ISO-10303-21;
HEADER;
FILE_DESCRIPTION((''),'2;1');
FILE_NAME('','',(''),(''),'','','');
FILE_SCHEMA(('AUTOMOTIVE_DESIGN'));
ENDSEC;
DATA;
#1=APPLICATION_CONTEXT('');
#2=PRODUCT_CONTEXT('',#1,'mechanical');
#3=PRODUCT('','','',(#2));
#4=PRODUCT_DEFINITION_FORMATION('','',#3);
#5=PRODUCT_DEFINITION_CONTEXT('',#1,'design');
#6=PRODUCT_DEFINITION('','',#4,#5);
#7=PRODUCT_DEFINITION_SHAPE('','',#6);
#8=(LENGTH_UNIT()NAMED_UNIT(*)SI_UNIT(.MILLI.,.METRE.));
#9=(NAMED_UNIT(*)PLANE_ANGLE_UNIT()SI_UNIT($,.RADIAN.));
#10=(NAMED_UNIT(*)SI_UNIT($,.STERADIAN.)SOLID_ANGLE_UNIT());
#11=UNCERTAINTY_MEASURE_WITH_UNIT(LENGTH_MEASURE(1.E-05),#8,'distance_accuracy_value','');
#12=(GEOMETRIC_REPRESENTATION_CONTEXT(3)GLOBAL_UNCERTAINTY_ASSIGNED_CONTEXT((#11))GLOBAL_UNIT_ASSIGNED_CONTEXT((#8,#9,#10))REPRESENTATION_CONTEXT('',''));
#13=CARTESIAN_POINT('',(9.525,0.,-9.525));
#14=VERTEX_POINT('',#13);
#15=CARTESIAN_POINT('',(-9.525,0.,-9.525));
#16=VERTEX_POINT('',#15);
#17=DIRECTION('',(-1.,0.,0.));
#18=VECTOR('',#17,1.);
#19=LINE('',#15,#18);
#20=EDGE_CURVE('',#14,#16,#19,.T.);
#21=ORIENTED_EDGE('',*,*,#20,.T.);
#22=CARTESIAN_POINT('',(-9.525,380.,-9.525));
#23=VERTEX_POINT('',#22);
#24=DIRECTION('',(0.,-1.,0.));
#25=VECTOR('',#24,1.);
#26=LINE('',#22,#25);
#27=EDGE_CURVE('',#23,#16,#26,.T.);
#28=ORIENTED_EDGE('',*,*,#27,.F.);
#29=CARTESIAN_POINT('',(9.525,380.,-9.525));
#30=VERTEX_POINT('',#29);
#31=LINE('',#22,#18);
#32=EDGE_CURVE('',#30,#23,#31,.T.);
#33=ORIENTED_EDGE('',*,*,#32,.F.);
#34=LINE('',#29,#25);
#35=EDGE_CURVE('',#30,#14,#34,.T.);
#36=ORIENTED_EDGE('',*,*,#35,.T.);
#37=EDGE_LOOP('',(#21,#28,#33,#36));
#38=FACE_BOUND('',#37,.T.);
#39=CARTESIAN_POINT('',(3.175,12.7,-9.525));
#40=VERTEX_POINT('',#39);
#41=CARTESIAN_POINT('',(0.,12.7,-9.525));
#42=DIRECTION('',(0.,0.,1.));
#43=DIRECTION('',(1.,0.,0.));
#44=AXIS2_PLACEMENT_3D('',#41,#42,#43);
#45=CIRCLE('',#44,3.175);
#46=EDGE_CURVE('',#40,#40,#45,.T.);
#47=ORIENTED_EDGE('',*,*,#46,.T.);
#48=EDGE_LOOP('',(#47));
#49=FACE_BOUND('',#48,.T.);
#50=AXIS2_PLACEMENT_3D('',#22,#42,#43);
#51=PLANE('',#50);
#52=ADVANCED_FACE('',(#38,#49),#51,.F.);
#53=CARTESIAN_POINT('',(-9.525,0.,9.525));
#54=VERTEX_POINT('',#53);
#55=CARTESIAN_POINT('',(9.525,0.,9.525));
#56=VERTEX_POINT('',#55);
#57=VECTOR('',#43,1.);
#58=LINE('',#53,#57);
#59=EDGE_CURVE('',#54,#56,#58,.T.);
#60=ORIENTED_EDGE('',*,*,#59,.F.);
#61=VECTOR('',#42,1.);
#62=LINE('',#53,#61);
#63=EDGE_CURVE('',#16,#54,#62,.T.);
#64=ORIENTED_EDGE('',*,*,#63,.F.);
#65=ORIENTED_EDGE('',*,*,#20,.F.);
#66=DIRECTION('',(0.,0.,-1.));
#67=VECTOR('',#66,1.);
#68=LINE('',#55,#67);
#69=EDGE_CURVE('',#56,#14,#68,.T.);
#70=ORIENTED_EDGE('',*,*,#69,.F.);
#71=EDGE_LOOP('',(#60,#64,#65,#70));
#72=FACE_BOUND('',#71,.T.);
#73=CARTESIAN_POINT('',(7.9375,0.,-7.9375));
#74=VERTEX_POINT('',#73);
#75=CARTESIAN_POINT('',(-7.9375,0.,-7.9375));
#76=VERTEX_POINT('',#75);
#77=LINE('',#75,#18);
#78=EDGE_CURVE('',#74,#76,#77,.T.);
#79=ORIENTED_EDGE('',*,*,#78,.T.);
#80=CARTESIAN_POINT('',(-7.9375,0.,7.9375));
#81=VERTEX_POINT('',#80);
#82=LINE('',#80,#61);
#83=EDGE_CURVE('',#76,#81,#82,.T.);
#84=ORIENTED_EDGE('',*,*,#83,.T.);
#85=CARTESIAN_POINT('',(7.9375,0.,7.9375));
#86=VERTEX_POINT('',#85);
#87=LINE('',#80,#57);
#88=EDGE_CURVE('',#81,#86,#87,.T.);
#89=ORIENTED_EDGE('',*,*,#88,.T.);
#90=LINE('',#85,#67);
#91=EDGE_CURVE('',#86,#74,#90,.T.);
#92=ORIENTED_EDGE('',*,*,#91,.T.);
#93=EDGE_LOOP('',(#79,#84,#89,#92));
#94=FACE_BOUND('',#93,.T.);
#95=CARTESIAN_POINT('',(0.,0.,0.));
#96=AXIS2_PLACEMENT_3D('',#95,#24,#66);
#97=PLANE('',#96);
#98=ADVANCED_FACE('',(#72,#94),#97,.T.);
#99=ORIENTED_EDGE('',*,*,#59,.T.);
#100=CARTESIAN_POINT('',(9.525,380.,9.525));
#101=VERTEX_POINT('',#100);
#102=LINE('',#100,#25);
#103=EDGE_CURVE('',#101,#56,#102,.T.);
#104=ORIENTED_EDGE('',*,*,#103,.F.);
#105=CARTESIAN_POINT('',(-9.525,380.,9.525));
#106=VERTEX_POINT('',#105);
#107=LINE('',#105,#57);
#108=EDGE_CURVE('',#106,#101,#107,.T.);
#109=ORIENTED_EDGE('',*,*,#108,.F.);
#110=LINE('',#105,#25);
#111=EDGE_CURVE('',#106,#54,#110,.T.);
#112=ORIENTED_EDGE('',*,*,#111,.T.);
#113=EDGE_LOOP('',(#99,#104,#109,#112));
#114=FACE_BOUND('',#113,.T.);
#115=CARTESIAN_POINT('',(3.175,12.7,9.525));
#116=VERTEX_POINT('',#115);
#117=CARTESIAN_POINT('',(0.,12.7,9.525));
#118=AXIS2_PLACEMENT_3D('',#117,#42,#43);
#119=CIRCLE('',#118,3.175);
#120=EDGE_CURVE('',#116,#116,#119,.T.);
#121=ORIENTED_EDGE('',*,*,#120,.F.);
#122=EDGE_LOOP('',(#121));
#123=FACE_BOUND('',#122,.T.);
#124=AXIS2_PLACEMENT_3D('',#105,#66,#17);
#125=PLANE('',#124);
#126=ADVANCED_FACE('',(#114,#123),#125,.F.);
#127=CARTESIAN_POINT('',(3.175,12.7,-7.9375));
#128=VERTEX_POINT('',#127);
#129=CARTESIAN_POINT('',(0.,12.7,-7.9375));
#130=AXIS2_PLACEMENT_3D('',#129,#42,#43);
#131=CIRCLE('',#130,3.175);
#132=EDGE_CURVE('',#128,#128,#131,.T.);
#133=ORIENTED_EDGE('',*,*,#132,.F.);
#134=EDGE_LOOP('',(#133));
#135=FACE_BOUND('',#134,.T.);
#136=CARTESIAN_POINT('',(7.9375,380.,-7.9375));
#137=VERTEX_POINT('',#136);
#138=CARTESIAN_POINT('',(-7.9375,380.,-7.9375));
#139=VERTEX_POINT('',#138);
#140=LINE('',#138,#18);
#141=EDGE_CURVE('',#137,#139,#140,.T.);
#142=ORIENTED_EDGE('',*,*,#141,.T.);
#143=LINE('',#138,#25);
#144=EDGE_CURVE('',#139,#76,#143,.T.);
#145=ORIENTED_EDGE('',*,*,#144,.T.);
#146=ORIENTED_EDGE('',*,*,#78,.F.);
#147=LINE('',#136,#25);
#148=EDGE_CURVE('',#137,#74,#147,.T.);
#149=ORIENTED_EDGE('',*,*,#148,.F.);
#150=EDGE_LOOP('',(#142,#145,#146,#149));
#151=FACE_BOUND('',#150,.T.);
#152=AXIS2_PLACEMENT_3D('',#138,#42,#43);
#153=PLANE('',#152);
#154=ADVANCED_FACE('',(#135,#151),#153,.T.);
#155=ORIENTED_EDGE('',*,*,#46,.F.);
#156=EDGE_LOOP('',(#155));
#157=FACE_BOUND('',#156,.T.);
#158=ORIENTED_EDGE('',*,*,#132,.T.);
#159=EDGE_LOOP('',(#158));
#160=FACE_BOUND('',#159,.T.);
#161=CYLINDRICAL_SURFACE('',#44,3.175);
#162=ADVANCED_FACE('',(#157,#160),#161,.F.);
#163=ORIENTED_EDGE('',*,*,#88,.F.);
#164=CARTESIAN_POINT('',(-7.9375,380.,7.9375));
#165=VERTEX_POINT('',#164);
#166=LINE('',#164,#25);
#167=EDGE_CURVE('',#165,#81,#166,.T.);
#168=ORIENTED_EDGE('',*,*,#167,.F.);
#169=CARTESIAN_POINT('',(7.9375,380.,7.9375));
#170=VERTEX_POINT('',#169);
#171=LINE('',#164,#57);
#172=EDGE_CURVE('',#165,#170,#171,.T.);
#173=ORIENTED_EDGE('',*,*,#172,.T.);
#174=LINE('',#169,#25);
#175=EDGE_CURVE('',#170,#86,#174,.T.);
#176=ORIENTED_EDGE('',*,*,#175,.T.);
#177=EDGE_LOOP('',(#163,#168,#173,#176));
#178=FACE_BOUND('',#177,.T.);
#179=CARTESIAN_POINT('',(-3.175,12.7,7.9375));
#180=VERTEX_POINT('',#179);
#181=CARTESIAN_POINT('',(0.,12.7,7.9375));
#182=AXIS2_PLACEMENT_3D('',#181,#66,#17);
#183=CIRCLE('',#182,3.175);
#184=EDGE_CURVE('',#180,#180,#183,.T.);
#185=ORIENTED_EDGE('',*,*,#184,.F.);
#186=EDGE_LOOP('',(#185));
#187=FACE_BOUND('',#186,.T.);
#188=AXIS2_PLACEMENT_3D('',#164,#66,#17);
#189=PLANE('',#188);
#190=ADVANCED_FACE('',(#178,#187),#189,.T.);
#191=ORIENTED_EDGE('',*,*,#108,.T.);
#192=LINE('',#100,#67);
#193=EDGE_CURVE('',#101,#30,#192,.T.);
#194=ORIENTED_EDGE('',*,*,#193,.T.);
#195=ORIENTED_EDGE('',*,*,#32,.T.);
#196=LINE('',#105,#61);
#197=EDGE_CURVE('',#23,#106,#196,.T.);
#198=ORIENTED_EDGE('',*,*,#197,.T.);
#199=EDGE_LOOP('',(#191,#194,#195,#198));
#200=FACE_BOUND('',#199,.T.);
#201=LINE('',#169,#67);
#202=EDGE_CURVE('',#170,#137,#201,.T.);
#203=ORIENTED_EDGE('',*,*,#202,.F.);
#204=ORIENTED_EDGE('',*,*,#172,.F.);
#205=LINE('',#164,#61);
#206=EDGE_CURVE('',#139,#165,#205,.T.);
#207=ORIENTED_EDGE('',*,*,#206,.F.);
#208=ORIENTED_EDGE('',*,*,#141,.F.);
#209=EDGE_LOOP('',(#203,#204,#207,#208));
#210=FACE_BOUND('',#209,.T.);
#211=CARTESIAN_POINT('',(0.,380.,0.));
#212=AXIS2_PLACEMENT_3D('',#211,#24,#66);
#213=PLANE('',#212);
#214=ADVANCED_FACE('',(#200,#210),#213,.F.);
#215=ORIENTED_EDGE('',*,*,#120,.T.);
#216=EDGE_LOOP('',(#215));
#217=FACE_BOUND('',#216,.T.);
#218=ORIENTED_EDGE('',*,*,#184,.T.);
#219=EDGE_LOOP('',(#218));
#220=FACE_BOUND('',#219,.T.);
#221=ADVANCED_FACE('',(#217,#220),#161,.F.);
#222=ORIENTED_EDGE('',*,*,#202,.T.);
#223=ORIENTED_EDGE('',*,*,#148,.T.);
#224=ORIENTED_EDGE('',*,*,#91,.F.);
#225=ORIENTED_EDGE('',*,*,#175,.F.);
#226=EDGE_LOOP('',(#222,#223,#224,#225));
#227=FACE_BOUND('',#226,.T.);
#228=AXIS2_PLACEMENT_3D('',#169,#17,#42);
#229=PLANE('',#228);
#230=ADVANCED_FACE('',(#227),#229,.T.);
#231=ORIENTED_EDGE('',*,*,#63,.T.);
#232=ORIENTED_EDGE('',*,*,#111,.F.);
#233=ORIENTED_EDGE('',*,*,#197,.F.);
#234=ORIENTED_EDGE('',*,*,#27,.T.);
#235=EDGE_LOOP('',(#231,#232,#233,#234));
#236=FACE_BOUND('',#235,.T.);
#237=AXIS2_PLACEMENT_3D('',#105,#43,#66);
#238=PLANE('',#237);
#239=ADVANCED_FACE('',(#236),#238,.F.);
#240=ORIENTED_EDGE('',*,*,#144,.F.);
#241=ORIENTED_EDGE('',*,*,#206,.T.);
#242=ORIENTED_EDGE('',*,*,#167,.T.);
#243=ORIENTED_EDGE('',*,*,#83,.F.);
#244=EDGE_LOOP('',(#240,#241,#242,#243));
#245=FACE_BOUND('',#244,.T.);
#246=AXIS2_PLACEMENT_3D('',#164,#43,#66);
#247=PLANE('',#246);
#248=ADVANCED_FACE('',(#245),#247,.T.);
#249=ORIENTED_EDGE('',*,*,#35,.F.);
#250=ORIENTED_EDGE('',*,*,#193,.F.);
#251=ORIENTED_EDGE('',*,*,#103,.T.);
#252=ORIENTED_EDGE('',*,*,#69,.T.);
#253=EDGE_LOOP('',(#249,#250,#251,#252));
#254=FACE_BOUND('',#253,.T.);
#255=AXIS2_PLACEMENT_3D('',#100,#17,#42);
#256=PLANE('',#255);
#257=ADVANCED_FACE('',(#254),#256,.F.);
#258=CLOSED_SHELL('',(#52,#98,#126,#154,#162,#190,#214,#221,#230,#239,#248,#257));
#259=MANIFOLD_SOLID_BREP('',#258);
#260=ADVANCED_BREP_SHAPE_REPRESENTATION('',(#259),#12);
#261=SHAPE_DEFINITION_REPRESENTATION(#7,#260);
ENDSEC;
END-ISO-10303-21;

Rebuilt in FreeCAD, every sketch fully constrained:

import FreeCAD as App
import Part
import Sketcher
Q = App.Units.Quantity

doc = App.newDocument("Part")
params = doc.addObject("Spreadsheet::Sheet", "Params")
for row, (alias, value) in enumerate([
    ("sketch1_width", "0.75 in"),
    ("sketch1_width2", "0.625 in"),
    ("pad1_length", "380 mm"),
    ("sketch2_diameter", "0.25 in"),
], start=1):
    params.set(f"A{row}", alias)
    params.set(f"B{row}", "=" + value)
    params.setAlias(f"B{row}", alias)

body = doc.addObject("PartDesign::Body", "Body")

sketch1 = doc.addObject("Sketcher::SketchObject", "Sketch")
body.addObject(sketch1)
sketch1.AttachmentSupport = (doc.XZ_Plane, [""])
sketch1.MapMode = "FlatFace"
sketch1.addGeometry([
    Part.LineSegment(App.Vector(-10, -10, 0), App.Vector(-10, 10, 0)),
    Part.LineSegment(App.Vector(-10, 10, 0), App.Vector(10, 10, 0)),
    Part.LineSegment(App.Vector(10, 10, 0), App.Vector(10, -10, 0)),
    Part.LineSegment(App.Vector(10, -10, 0), App.Vector(-10, -10, 0)),
    Part.LineSegment(App.Vector(8, 8, 0), App.Vector(-8, 8, 0)),
    Part.LineSegment(App.Vector(-8, 8, 0), App.Vector(-8, -8, 0)),
    Part.LineSegment(App.Vector(-8, -8, 0), App.Vector(8, -8, 0)),
    Part.LineSegment(App.Vector(8, -8, 0), App.Vector(8, 8, 0)),
], False)
sketch1.addConstraint([
    Sketcher.Constraint("Coincident", 0, 2, 1, 1),
    Sketcher.Constraint("Coincident", 1, 2, 2, 1),
    Sketcher.Constraint("Coincident", 2, 2, 3, 1),
    Sketcher.Constraint("Coincident", 3, 2, 0, 1),
    Sketcher.Constraint("Coincident", 4, 2, 5, 1),
    Sketcher.Constraint("Coincident", 5, 2, 6, 1),
    Sketcher.Constraint("Coincident", 6, 2, 7, 1),
    Sketcher.Constraint("Coincident", 7, 2, 4, 1),
    Sketcher.Constraint("Vertical", 0),
    Sketcher.Constraint("Horizontal", 1),
    Sketcher.Constraint("Vertical", 2),
    Sketcher.Constraint("Horizontal", 3),
    Sketcher.Constraint("Horizontal", 4),
    Sketcher.Constraint("Vertical", 5),
    Sketcher.Constraint("Horizontal", 6),
    Sketcher.Constraint("Vertical", 7),
    Sketcher.Constraint("Symmetric", 0, 2, 2, 2, -1, 1),
    Sketcher.Constraint("Symmetric", 4, 2, 6, 2, -1, 1),
    Sketcher.Constraint("Equal", 3, 0),
    Sketcher.Constraint("Equal", 6, 5),
    Sketcher.Constraint("DistanceX", 1, 1, 1, 2, Q("0.75 in")),
    Sketcher.Constraint("DistanceX", 4, 2, 4, 1, Q("0.625 in")),
])
sketch1.setExpression("Constraints[20]", "Params.sketch1_width")
sketch1.setExpression("Constraints[21]", "Params.sketch1_width2")
pad1 = doc.addObject("PartDesign::Pad", "Pad")
body.addObject(pad1)
pad1.Profile = sketch1
pad1.setExpression("Length", "Params.pad1_length")
pad1.Reversed = True

sketch2 = doc.addObject("Sketcher::SketchObject", "Sketch001")
body.addObject(sketch2)
sketch2.AttachmentSupport = (doc.XY_Plane, [""])
sketch2.MapMode = "FlatFace"
sketch2.AttachmentOffset = App.Placement(App.Vector(0, 0, 0.375 * 25.4), App.Rotation())
sketch2.addGeometry(Part.Circle(App.Vector(0, 12.7, 0), App.Vector(0, 0, 1), 3.2), False)
sketch2.addConstraint([
    Sketcher.Constraint("PointOnObject", 0, 3, -2),
    Sketcher.Constraint("Diameter", 0, Q("0.25 in")),
    Sketcher.Constraint("DistanceY", -1, 1, 0, 3, Q("0.5 in")),
])
sketch2.setExpression("Constraints[1]", "Params.sketch2_diameter")
pocket1 = doc.addObject("PartDesign::Pocket", "Pocket")
body.addObject(pocket1)
pocket1.Profile = sketch2
pocket1.Type = "ThroughAll"

doc.recompute()
